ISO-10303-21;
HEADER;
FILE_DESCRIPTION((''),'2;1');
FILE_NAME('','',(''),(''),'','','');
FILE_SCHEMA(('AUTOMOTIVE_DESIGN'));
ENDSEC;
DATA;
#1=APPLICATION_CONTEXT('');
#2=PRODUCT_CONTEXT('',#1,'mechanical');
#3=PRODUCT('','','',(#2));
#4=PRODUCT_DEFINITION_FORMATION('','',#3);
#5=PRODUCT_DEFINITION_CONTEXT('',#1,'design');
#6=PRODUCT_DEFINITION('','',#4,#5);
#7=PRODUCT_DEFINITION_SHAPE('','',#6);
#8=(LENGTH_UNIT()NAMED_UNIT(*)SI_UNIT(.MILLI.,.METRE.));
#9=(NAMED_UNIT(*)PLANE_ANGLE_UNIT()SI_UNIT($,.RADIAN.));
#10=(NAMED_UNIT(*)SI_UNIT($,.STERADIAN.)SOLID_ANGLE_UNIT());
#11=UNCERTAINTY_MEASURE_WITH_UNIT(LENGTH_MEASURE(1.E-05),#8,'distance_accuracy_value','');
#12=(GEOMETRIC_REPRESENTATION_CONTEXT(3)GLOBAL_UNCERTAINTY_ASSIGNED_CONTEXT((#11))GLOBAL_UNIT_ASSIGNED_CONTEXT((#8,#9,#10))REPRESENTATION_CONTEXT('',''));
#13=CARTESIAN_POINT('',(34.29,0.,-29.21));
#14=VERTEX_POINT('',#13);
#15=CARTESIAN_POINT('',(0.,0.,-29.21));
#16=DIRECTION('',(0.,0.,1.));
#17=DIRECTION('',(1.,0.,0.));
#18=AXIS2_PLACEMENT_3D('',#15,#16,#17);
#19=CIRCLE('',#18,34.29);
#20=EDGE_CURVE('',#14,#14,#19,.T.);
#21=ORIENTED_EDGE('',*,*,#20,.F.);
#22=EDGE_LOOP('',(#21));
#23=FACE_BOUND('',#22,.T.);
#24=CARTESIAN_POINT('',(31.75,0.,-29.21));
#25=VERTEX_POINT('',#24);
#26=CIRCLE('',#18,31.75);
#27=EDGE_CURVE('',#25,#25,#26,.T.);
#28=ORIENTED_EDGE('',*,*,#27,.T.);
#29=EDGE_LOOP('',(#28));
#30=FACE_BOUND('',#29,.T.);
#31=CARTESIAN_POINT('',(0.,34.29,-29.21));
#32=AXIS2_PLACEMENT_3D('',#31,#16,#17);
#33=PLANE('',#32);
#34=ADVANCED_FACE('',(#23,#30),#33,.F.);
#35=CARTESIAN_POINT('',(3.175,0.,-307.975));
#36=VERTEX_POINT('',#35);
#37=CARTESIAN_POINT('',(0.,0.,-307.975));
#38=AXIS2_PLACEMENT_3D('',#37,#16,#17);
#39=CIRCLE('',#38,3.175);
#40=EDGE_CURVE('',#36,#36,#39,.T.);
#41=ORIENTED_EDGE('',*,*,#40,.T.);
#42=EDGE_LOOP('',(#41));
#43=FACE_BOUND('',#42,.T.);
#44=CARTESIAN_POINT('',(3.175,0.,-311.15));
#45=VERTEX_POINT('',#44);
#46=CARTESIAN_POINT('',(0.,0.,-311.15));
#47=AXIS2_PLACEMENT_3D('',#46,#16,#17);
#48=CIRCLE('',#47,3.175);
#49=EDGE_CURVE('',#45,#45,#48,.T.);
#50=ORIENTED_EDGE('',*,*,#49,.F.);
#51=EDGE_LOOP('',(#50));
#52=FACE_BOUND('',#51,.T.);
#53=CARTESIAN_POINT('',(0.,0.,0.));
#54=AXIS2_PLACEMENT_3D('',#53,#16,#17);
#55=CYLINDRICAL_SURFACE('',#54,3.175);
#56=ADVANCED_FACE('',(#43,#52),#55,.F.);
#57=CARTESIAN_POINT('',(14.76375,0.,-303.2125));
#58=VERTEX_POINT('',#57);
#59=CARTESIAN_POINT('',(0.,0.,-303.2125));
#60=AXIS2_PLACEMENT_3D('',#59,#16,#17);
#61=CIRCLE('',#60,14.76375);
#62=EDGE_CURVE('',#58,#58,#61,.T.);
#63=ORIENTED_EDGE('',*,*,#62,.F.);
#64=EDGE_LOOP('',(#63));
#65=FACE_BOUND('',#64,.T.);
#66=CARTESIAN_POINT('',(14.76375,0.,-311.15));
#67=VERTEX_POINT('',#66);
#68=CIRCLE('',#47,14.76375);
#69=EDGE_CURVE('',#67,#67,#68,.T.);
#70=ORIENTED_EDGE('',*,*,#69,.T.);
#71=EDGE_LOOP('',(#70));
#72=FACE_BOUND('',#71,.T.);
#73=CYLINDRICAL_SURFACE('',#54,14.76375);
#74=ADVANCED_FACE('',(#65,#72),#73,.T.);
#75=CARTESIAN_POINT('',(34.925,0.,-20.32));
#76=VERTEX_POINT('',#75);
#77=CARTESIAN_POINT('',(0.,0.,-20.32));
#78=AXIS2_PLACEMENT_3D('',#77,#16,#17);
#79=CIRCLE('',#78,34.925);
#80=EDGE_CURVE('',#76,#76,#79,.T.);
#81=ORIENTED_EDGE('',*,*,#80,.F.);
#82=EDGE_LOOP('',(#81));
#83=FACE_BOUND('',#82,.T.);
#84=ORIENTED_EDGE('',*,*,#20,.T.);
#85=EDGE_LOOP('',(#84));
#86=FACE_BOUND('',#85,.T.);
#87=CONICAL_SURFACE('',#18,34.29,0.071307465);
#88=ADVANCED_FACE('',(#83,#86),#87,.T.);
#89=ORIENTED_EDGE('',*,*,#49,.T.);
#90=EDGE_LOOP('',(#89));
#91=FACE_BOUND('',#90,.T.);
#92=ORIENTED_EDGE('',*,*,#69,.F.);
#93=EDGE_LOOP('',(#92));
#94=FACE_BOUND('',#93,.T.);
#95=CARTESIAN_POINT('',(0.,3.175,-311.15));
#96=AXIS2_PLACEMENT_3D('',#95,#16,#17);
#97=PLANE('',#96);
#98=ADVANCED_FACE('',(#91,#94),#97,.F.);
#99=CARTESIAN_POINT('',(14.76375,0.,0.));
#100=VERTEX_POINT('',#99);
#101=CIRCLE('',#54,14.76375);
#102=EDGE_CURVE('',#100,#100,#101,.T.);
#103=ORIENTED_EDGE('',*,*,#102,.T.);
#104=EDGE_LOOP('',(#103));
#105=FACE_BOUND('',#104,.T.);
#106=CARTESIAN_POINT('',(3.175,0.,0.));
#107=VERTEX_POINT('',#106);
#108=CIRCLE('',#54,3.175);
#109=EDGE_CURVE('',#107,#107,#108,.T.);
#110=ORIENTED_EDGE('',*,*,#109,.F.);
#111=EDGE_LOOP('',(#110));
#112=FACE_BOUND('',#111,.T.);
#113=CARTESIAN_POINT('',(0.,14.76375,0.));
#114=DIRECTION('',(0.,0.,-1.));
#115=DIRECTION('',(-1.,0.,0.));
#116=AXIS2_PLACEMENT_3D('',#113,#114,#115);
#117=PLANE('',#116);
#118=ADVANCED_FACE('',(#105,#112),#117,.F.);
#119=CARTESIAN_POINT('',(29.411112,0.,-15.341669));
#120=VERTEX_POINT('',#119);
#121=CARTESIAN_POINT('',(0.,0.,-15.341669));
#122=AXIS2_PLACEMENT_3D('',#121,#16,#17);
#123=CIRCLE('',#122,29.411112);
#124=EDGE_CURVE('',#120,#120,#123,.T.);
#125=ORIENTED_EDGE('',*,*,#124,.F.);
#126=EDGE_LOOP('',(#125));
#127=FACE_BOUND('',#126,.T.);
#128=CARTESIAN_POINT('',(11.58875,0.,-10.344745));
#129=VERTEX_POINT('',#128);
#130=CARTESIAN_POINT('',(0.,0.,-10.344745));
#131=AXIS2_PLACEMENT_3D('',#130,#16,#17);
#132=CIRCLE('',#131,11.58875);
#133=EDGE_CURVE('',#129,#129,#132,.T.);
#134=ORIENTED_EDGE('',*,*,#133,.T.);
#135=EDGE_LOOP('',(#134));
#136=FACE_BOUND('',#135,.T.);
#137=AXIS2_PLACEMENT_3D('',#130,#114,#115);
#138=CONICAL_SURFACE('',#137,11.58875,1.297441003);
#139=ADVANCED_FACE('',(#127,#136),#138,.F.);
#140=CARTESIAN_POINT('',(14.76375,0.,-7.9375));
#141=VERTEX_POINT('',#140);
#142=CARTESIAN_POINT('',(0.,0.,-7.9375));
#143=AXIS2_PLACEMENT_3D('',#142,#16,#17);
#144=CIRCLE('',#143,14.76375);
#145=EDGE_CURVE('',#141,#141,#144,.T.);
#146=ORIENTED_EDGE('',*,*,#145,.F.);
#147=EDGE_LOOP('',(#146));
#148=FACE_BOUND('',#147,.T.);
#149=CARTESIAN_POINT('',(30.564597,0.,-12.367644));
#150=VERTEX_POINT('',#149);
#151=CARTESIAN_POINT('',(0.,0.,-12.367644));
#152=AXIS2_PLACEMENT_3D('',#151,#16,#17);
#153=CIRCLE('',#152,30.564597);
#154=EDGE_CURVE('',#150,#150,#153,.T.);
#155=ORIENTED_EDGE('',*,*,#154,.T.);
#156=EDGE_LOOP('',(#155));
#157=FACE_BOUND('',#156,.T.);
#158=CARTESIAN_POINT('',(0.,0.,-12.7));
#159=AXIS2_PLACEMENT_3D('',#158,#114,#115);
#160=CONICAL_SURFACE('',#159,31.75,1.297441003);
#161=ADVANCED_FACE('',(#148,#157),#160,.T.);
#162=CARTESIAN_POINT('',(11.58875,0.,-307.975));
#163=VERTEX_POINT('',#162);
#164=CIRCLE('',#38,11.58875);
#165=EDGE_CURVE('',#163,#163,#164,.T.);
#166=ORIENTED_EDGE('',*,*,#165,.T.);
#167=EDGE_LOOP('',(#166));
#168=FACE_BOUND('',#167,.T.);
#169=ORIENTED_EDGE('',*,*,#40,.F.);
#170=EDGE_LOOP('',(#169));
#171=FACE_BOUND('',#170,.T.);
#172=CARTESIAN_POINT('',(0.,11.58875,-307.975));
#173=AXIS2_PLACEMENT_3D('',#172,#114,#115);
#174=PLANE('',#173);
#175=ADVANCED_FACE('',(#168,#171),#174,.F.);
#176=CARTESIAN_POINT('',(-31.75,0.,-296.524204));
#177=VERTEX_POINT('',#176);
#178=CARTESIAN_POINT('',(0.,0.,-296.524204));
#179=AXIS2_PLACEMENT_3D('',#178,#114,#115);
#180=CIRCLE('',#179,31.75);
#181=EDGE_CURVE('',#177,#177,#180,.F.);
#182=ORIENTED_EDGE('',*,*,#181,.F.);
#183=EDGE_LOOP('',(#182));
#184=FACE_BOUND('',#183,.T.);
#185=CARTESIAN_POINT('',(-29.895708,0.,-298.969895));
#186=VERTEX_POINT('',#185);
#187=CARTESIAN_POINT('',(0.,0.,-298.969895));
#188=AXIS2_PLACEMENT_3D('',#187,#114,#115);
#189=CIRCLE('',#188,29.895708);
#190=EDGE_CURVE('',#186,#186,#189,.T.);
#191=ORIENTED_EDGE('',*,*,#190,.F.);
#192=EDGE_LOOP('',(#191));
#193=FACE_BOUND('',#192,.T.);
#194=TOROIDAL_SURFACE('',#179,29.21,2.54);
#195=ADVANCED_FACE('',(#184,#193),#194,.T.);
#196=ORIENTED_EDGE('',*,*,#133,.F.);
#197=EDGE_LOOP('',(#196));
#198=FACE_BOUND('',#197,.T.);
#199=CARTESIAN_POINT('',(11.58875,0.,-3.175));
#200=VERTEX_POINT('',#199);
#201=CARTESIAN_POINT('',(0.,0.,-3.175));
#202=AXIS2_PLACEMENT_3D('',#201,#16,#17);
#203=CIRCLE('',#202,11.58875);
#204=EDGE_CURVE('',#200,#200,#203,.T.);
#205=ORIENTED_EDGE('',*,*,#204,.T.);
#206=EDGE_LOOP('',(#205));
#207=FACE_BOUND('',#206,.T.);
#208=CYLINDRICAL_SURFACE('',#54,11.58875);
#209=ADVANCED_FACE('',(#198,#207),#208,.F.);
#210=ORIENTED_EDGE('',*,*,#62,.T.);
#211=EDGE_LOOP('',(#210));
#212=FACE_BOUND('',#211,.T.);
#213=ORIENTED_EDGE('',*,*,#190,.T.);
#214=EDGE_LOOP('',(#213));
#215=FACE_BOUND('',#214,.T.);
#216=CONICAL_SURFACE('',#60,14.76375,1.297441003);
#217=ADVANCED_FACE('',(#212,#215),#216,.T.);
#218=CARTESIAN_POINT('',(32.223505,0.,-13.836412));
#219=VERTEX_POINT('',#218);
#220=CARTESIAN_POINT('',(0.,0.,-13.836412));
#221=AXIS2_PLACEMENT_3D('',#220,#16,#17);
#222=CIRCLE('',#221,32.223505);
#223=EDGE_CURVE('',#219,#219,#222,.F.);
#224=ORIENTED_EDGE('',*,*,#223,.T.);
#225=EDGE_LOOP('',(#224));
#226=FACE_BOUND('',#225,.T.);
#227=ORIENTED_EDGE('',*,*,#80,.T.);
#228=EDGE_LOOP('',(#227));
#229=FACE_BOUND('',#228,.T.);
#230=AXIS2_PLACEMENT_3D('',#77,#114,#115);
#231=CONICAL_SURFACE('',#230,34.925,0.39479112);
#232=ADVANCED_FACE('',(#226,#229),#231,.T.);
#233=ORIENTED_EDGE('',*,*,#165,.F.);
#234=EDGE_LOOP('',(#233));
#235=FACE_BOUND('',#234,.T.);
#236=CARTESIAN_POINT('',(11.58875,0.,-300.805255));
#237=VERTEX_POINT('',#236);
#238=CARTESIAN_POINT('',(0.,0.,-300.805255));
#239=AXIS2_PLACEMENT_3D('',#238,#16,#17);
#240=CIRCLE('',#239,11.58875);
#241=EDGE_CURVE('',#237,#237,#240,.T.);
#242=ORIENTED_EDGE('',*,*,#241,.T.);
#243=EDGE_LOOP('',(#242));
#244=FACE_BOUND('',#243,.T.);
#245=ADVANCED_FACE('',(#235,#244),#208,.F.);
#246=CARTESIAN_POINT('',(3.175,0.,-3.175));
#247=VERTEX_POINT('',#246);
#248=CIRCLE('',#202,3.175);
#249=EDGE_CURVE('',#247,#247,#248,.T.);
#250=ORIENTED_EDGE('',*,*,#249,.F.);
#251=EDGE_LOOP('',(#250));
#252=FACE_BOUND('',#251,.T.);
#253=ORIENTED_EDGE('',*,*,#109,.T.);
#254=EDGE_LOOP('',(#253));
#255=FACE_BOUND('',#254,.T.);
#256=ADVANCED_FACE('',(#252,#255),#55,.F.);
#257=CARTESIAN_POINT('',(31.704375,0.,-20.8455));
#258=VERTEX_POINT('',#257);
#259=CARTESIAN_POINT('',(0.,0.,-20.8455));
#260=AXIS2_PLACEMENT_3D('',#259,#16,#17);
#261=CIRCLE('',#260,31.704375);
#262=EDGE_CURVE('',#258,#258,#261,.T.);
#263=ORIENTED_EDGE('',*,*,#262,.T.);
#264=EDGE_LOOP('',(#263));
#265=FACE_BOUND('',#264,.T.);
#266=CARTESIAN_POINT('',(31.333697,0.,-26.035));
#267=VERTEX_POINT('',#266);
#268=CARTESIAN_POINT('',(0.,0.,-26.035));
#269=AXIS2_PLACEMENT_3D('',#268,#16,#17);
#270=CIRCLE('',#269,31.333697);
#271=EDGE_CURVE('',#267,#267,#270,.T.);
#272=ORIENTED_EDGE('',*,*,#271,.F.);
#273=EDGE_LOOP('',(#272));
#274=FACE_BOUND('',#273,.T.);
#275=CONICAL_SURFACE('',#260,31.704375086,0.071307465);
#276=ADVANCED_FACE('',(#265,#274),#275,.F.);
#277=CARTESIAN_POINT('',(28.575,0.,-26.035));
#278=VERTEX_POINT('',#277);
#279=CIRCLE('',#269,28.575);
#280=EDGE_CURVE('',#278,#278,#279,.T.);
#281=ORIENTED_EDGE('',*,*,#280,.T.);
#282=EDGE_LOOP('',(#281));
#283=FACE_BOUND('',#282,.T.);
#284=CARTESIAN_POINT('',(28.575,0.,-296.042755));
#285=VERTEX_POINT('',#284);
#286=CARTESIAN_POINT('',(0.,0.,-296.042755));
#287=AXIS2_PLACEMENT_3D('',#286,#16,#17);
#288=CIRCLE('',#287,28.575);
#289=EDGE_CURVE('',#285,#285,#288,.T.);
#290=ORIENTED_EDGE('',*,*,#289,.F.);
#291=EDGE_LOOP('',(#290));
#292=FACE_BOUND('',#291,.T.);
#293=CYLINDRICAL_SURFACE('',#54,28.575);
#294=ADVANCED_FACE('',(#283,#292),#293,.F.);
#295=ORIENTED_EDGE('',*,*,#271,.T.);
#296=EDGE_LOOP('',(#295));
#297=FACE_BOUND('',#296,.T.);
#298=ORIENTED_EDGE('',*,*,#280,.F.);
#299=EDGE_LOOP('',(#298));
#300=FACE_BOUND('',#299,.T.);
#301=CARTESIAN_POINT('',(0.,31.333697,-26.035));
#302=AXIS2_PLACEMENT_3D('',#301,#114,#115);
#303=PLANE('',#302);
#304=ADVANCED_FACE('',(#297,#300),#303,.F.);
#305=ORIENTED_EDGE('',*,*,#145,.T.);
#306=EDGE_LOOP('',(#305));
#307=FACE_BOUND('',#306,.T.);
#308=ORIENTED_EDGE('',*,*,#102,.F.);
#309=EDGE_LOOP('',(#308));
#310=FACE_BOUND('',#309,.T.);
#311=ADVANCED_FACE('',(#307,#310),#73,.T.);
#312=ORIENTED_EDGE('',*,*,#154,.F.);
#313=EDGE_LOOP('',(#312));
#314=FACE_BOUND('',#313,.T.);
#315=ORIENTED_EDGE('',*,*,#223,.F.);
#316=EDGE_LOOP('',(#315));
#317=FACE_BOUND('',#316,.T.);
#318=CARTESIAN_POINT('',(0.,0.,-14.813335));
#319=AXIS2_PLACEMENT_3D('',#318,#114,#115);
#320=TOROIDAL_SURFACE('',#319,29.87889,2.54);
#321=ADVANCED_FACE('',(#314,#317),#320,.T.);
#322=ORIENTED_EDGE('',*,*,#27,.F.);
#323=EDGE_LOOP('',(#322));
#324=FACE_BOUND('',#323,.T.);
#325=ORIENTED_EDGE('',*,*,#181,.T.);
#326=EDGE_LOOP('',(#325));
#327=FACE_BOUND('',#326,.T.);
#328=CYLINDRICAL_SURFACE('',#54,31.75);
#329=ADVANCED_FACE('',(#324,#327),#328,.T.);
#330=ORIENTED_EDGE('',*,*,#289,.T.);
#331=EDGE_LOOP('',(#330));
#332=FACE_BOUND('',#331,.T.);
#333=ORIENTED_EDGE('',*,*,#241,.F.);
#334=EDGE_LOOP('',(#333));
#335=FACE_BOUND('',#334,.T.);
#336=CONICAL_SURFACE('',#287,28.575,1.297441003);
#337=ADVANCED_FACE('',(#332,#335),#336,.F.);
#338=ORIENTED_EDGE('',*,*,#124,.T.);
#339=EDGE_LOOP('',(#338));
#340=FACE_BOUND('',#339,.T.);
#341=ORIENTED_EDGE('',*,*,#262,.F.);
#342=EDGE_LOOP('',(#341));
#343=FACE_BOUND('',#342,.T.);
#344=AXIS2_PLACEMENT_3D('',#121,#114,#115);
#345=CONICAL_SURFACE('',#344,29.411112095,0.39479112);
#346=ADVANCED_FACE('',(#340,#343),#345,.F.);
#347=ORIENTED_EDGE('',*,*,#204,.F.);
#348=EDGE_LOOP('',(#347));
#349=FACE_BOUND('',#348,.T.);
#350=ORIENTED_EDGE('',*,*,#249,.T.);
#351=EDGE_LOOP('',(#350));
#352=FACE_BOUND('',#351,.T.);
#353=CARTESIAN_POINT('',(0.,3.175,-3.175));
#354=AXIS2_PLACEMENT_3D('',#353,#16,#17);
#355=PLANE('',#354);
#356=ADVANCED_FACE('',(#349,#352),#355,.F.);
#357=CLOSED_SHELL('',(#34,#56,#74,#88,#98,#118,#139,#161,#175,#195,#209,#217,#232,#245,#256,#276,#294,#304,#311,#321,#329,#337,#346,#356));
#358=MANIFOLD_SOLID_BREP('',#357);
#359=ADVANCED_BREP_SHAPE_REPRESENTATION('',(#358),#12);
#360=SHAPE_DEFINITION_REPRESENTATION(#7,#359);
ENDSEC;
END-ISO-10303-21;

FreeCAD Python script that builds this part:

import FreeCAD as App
import Part
import Sketcher

V = App.Vector
Q = App.Units.Quantity


def edges_at(feature, points):
    """Names of the edges that pass closest to the given points."""
    edges = feature.Shape.Edges
    near = lambda p: min(range(len(edges)), key=lambda i: edges[i].distToShape(Part.Vertex(*p))[0])
    return sorted({f"Edge{near(p) + 1}" for p in points})


def add_polygon(sketch, points):
    """Adds a closed chain of lines whose ends are joined by coincident constraints."""
    first, n = sketch.GeometryCount, len(points)
    for a, b in zip(points, points[1:] + points[:1]):
        sketch.addGeometry(Part.LineSegment(App.Vector(*a, 0), App.Vector(*b, 0)), False)
    for i in range(n):
        sketch.addConstraint(Sketcher.Constraint("Coincident", first + i, 2, first + (i + 1) % n, 1))

doc = App.newDocument("Part")
body = doc.addObject("PartDesign::Body", "Body")

# Sketch on YZ plane
sketch1 = body.newObject("Sketcher::SketchObject", "Sketch")
sketch1.AttachmentSupport = (doc.getObject("YZ_Plane"), [""])
sketch1.MapMode = "FlatFace"
add_polygon(sketch1, [(14.8, -7.9), (14.8, 0), (3.2, 0), (3.2, -3.2), (11.6, -3.2), (11.6, -10.3), (29.4, -15.3), (31.7, -20.8), (31.3, -26), (28.6, -26), (28.6, -296), (11.6, -300.8), (11.6, -308), (3.2, -308), (3.2, -311.1), (14.8, -311.1), (14.8, -303.2), (31.8, -298.4), (31.8, -29.2), (34.3, -29.2), (34.9, -20.3), (31.8, -12.7)])  # lines 0-21
sketch1.addConstraint([
    Sketcher.Constraint("Vertical", 0),
    Sketcher.Constraint("Horizontal", 1),
    Sketcher.Constraint("Vertical", 2),
    Sketcher.Constraint("Horizontal", 3),
    Sketcher.Constraint("Vertical", 4),
    Sketcher.Constraint("Horizontal", 8),
    Sketcher.Constraint("Vertical", 9),
    Sketcher.Constraint("Vertical", 11),
    Sketcher.Constraint("Horizontal", 12),
    Sketcher.Constraint("Vertical", 13),
    Sketcher.Constraint("Horizontal", 14),
    Sketcher.Constraint("Vertical", 15),
    Sketcher.Constraint("Vertical", 17),
    Sketcher.Constraint("Horizontal", 18),
    Sketcher.Constraint("PointOnObject", 0, 2, -1),
    Sketcher.Constraint("Parallel", 10, 16),
    Sketcher.Constraint("Parallel", 7, 19),
    Sketcher.Constraint("Parallel", 6, 20),
    Sketcher.Constraint("Parallel", 5, 21),
    Sketcher.Constraint("Vertical", 4, 2, 10, 2),
    Sketcher.Constraint("Vertical", 2, 2, 12, 2),
    Sketcher.Constraint("Vertical", 0, 2, 14, 2),
    Sketcher.Constraint("Vertical", 17, 2, 20, 2),
    Sketcher.Constraint("Equal", 4, 11),
    Sketcher.Constraint("Equal", 2, 13),
    Sketcher.Constraint("Equal", 0, 15),
    Sketcher.Constraint("Equal", 10, 16),
    Sketcher.Constraint("Equal", 16, 21),
    Sketcher.Constraint("DistanceX", 18, 1, 18, 2, Q("0.1 in")),
    Sketcher.Constraint("DistanceY", 17, 1, 17, 2, Q("10.6 in")),
    Sketcher.Constraint("DistanceX", 12, 2, 9, 2, Q("1 in")),
    Sketcher.Constraint("DistanceY", 19, 2, -1, 1, Q("0.8 in")),
    Sketcher.Constraint("DistanceY", 20, 2, -1, 1, Q("0.5 in")),
    Sketcher.Constraint("DistanceY", 7, 2, 3, 2, Q("0.9 in")),
    Sketcher.Constraint("DistanceY", 11, 2, 8, 2, Q("11.1 in")),
    Sketcher.Constraint("DistanceY", 0, 1, 0, 2, Q("0.3125 in")),
    Sketcher.Constraint("DistanceY", 2, 2, 2, 1, Q("0.125 in")),
    Sketcher.Constraint("DistanceX", -1, 1, 16, 2, Q("1.25 in")),
    Sketcher.Constraint("DistanceX", 8, 2, 19, 2, Q("0.25 in")),
    Sketcher.Constraint("Distance", 20, Q("0.325 in")),
    Sketcher.Constraint("DistanceX", 1, 2, 1, 1, 11.58875),
    Sketcher.Constraint("DistanceY", 6, 2, -1, 1, 20.8455),
    Sketcher.Constraint("DistanceX", 8, 2, 8, 1, 2.758697),
    Sketcher.Constraint("DistanceY", 4, 2, 4, 1, 7.169745),
])
revolution = body.newObject("PartDesign::Revolution", "Revolution")
revolution.Profile = sketch1
revolution.ReferenceAxis = (sketch1, ["V_Axis"])
revolution.Angle = 360
doc.recompute()

fillet = body.newObject("PartDesign::Fillet", "Fillet")
fillet.Base = (revolution, edges_at(revolution, [(-31.75, 0, -298.45), (-31.75, 0, -12.7)]))
fillet.Radius = Q("0.1 in")

doc.recompute()
